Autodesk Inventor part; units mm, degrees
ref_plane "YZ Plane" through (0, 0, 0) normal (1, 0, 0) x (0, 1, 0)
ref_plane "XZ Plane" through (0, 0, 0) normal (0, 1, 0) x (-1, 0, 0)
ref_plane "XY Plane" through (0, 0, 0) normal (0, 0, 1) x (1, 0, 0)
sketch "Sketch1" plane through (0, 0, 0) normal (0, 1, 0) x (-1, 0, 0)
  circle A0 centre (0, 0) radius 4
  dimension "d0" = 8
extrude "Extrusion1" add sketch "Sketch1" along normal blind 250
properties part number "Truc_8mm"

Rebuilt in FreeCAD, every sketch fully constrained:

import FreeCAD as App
import Part
import Sketcher

V = App.Vector

doc = App.newDocument("Part")
params = doc.addObject("Spreadsheet::Sheet", "Params")
for row, (alias, value) in enumerate([
    ("sketch1_diameter", "8 mm"),
    ("pad1_length", "250 mm"),
], start=1):
    params.set(f"A{row}", alias)
    params.set(f"B{row}", "=" + value)
    params.setAlias(f"B{row}", alias)

body = doc.addObject("PartDesign::Body", "Body")

sketch1 = doc.addObject("Sketcher::SketchObject", "Sketch")
body.addObject(sketch1)
sketch1.AttachmentSupport = (doc.XZ_Plane, [""])
sketch1.MapMode = "FlatFace"
sketch1.addGeometry(Part.Circle(V(0, 0, 0), V(0, 0, 1), 4), False)
sketch1.addConstraint([
    Sketcher.Constraint("Coincident", 0, 3, -1, 1),
    Sketcher.Constraint("Diameter", 0, 8.0),
])
sketch1.setExpression("Constraints[1]", "Params.sketch1_diameter")
pad1 = doc.addObject("PartDesign::Pad", "Pad")
body.addObject(pad1)
pad1.Profile = sketch1
pad1.setExpression("Length", "Params.pad1_length")
pad1.Reversed = True

doc.recompute()
